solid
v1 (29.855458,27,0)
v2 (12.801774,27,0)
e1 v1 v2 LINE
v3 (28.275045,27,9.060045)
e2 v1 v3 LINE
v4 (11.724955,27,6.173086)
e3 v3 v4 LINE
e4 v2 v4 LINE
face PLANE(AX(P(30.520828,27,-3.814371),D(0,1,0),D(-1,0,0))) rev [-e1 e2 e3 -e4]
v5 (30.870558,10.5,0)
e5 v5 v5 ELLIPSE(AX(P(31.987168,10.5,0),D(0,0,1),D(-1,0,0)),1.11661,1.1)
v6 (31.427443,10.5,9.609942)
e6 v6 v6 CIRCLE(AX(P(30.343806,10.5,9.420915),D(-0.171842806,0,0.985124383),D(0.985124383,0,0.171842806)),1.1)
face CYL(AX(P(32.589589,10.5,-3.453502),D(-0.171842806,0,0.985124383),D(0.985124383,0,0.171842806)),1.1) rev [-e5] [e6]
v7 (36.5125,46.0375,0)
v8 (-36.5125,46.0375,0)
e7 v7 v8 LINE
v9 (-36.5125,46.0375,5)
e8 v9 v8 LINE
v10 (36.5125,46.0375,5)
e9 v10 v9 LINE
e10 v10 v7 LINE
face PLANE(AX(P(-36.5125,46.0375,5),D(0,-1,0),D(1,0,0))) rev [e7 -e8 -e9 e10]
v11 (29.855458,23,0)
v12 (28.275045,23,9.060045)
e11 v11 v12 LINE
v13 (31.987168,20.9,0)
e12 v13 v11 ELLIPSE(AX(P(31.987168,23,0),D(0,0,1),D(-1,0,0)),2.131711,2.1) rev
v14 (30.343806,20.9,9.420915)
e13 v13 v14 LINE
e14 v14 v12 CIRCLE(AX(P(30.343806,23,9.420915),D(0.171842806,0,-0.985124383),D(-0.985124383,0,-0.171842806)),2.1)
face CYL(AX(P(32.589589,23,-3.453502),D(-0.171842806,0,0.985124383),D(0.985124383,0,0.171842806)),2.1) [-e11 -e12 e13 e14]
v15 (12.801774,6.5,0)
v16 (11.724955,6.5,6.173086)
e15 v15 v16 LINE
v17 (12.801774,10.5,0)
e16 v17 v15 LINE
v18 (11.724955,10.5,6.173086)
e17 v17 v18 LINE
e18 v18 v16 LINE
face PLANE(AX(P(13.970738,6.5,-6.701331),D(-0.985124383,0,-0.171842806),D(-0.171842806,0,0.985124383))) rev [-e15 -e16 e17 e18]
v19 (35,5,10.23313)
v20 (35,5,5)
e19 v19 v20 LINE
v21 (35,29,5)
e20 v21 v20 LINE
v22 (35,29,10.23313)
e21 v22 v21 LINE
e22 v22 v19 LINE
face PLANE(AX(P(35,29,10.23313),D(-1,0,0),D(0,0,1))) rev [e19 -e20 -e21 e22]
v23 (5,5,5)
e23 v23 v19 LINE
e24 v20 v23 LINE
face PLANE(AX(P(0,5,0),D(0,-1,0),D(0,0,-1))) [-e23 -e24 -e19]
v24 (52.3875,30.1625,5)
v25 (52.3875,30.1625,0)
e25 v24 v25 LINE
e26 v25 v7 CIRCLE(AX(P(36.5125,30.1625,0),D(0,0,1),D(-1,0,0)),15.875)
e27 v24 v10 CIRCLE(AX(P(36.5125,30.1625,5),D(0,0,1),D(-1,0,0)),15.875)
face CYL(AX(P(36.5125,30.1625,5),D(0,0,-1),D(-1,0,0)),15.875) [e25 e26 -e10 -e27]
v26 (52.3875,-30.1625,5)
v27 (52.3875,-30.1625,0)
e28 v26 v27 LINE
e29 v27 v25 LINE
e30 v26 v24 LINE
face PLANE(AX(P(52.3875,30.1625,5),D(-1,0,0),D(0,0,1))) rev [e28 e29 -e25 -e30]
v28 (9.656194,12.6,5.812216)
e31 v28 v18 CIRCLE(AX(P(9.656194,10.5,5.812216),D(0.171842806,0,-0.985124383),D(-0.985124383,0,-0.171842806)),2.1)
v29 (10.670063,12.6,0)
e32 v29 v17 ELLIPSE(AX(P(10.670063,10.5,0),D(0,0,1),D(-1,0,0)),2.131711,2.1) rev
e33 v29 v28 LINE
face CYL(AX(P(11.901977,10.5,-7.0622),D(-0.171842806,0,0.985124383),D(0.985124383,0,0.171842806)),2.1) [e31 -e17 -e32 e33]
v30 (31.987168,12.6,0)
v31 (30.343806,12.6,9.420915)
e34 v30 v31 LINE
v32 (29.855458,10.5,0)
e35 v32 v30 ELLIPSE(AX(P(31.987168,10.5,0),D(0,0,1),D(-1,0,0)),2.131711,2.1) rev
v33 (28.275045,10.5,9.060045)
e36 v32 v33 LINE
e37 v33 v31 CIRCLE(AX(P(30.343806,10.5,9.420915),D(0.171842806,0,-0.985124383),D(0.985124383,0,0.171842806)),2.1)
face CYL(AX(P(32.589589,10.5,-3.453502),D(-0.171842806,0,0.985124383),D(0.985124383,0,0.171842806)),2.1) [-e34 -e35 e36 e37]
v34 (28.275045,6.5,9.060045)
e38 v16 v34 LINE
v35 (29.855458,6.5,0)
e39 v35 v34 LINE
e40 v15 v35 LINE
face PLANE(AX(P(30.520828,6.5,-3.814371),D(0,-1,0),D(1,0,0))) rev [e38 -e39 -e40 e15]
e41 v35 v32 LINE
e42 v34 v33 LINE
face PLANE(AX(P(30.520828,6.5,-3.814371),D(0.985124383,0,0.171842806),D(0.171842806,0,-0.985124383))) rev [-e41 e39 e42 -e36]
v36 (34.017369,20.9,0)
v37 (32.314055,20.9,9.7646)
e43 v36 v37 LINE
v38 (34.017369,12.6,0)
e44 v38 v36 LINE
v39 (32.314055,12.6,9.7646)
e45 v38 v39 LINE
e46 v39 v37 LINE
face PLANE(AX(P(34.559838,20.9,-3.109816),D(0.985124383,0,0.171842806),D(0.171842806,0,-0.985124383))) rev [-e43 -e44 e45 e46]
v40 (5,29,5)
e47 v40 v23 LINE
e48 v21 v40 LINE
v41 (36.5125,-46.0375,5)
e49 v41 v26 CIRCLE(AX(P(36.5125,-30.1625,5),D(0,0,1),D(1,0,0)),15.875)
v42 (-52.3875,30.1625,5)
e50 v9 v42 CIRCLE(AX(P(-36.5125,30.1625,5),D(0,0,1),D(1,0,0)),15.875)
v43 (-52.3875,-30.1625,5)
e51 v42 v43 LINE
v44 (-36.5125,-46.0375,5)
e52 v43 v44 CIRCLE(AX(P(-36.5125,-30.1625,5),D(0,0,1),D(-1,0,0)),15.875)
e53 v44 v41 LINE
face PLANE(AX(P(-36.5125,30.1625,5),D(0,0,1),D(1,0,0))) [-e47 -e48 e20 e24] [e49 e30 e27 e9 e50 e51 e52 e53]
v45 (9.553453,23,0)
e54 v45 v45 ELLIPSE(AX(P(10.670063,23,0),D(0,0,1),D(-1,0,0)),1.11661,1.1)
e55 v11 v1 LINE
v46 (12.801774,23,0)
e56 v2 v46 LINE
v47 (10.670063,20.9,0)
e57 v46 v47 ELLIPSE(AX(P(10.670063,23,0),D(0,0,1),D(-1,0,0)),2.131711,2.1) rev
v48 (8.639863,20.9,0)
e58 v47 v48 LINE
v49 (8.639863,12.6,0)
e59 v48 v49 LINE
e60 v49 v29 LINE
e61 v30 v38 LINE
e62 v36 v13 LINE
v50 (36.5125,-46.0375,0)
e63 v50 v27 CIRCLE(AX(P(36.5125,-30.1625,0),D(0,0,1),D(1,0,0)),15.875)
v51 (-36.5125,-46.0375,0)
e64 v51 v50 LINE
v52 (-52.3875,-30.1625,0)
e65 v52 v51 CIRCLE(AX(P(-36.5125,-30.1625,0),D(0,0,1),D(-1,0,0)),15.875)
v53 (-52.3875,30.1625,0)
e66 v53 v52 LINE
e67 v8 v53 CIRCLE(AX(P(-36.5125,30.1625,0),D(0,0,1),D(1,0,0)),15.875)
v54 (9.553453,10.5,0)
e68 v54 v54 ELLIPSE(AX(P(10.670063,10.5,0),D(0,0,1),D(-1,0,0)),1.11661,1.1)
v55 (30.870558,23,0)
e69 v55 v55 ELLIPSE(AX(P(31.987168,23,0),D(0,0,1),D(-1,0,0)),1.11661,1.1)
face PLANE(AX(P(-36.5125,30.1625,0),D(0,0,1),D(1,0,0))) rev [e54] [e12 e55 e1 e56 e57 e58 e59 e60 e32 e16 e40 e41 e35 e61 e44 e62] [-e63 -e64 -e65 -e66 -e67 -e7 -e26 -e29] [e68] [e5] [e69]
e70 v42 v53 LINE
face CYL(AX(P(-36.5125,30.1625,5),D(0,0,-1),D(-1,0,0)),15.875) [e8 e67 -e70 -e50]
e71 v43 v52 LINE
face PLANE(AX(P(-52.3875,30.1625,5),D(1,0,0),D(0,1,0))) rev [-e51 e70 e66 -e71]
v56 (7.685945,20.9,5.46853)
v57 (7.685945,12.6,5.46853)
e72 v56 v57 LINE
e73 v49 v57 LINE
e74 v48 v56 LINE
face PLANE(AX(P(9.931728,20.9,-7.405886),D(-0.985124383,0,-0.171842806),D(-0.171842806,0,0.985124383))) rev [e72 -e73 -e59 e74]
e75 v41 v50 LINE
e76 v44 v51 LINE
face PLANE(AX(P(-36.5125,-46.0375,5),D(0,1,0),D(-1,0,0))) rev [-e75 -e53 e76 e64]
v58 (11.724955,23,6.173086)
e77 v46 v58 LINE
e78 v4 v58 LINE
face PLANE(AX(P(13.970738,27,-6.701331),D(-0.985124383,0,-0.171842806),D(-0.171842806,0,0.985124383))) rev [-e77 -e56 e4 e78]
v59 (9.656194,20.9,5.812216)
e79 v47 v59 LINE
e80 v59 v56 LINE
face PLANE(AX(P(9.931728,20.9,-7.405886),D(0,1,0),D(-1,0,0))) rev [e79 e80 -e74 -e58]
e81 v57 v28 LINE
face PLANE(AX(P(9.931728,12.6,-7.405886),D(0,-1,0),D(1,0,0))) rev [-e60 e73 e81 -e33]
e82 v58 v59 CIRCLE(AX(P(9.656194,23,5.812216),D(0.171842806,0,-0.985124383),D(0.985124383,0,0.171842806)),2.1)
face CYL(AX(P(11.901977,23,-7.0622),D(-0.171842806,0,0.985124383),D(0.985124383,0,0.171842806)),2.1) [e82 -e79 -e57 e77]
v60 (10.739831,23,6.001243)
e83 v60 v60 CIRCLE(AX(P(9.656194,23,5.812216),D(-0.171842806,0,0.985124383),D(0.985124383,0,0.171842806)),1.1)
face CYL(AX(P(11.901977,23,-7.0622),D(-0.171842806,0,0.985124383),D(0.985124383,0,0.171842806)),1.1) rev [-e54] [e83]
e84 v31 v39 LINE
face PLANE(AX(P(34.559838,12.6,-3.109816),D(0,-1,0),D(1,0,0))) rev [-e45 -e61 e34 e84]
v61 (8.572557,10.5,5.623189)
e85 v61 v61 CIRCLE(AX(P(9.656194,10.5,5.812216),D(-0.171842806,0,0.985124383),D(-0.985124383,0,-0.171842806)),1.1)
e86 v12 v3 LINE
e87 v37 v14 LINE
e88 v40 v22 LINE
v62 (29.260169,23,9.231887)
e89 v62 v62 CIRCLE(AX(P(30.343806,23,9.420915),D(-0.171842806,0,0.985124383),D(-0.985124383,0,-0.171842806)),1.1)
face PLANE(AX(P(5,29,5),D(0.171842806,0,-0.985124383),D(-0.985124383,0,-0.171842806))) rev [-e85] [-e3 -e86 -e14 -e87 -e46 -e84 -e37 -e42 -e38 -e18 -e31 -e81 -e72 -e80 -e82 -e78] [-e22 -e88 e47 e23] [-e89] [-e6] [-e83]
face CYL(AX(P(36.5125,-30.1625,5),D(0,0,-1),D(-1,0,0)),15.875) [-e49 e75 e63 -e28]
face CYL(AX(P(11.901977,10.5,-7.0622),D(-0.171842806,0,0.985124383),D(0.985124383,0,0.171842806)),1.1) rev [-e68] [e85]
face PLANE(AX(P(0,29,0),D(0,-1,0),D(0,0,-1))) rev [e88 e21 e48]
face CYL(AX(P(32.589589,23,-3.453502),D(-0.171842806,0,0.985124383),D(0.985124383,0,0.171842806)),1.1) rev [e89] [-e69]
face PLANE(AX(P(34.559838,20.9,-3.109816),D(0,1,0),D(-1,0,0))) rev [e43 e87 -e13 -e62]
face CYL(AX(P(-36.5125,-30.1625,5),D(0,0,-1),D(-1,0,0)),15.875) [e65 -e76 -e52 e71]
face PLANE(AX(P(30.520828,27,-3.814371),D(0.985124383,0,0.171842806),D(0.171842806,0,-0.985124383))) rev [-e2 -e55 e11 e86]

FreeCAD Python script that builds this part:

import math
import FreeCAD as App
import Part
import Sketcher

V = App.Vector
Q = App.Units.Quantity

doc = App.newDocument("Part")
body = doc.addObject("PartDesign::Body", "Body")

# Sketch on XY plane
sketch1 = doc.addObject("Sketcher::SketchObject", "Sketch")
body.addObject(sketch1)
sketch1.AttachmentSupport = (doc.XY_Plane, [""])
sketch1.MapMode = "FlatFace"
sketch1.addGeometry([
    Part.LineSegment(V(37, 46, 0), V(-37, 46, 0)),  # 0
    Part.ArcOfCircle(Part.Circle(V(-37, 30, 0), V(0, 0, 1), 16), math.radians(90), math.radians(180)),  # 1
    Part.LineSegment(V(-52, 30, 0), V(-52, -30, 0)),  # 2
    Part.ArcOfCircle(Part.Circle(V(-37, -30, 0), V(0, 0, 1), 16), math.radians(-180), math.radians(-90)),  # 3
    Part.LineSegment(V(-37, -46, 0), V(37, -46, 0)),  # 4
    Part.ArcOfCircle(Part.Circle(V(37, -30, 0), V(0, 0, 1), 16), math.radians(-90), math.radians(0)),  # 5
    Part.LineSegment(V(52, -30, 0), V(52, 30, 0)),  # 6
    Part.ArcOfCircle(Part.Circle(V(37, 30, 0), V(0, 0, 1), 16), math.radians(0), math.radians(90)),  # 7
], False)
sketch1.addConstraint([
    Sketcher.Constraint("Tangent", 0, 2, 1, 1),
    Sketcher.Constraint("Tangent", 1, 2, 2, 1),
    Sketcher.Constraint("Tangent", 2, 2, 3, 1),
    Sketcher.Constraint("Tangent", 3, 2, 4, 1),
    Sketcher.Constraint("Tangent", 4, 2, 5, 1),
    Sketcher.Constraint("Tangent", 5, 2, 6, 1),
    Sketcher.Constraint("Tangent", 6, 2, 7, 1),
    Sketcher.Constraint("Tangent", 7, 2, 0, 1),
    Sketcher.Constraint("Horizontal", 0),
    Sketcher.Constraint("Vertical", 2),
    Sketcher.Constraint("Horizontal", 4),
    Sketcher.Constraint("Vertical", 6),
    Sketcher.Constraint("Equal", 1, 3),
    Sketcher.Constraint("Equal", 3, 5),
    Sketcher.Constraint("Equal", 5, 7),
    Sketcher.Constraint("Symmetric", 1, 3, 5, 3, -1, 1),
    Sketcher.Constraint("Radius", 1, Q("15.875 mm")),
    Sketcher.Constraint("DistanceY", 3, 3, 0, 2, Q("76.2 mm")),
    Sketcher.Constraint("DistanceX", 1, 2, 7, 3, Q("88.9 mm")),
])
pad1 = doc.addObject("PartDesign::Pad", "Pad")
body.addObject(pad1)
pad1.Profile = sketch1
pad1.Length = 5

# Sketch on XZ plane
sketch2 = doc.addObject("Sketcher::SketchObject", "Sketch001")
body.addObject(sketch2)
sketch2.AttachmentSupport = (doc.XZ_Plane, [""])
sketch2.MapMode = "FlatFace"
sketch2.AttachmentOffset = App.Placement(V(0, 0, -5), App.Rotation())
sketch2.addGeometry([
    Part.LineSegment(V(5, 5, 0), V(35, 10, 0)),
    Part.LineSegment(V(35, 10, 0), V(35, 5, 0)),
    Part.LineSegment(V(35, 5, 0), V(5, 5, 0)),
], False)
sketch2.addConstraint([
    Sketcher.Constraint("Coincident", 0, 2, 1, 1),
    Sketcher.Constraint("Coincident", 1, 2, 2, 1),
    Sketcher.Constraint("Coincident", 2, 2, 0, 1),
    Sketcher.Constraint("Vertical", 1),
    Sketcher.Constraint("Horizontal", 2),
    Sketcher.Constraint("DistanceX", 2, 2, 2, 1, Q("30 mm")),
    Sketcher.Constraint("DistanceX", -1, 1, 0, 2, Q("35 mm")),
    Sketcher.Constraint("DistanceY", -1, 1, 1, 2, Q("5 mm")),
    Sketcher.Constraint("DistanceY", 1, 2, 1, 1, Q("5.23313 mm")),
])
pad2 = doc.addObject("PartDesign::Pad", "Pad001")
body.addObject(pad2)
pad2.Profile = sketch2
pad2.Length = 24
pad2.Reversed = True

# Sketch on an angled plane
sketch3 = doc.addObject("Sketcher::SketchObject", "Sketch002")
body.addObject(sketch3)
sketch3.Placement = App.Placement(V(-0.698783, 0, 4.005918), App.Rotation(V(0.985124383, 0, 0.171842806), V(0, 1, 0), V(-0.171842806, 0, 0.985124383), "ZXY"))
sketch3.addGeometry([
    Part.Circle(V(10.5, 23, 0), V(0, 0, 1), 1.1),  # 0
    Part.Circle(V(31.5, 23, 0), V(0, 0, 1), 1.1),  # 1
    Part.Circle(V(31.5, 10.5, 0), V(0, 0, 1), 1.1),  # 2
    Part.Circle(V(10.5, 10.5, 0), V(0, 0, 1), 1.1),  # 3
    Part.LineSegment(V(29.4, 27, 0), V(12.6, 27, 0)),  # 4
    Part.LineSegment(V(12.6, 27, 0), V(12.6, 23, 0)),  # 5
    Part.ArcOfCircle(Part.Circle(V(10.5, 23, 0), V(0, 0, 1), 2.1), math.radians(-90), math.radians(0)),  # 6
    Part.LineSegment(V(10.5, 20.9, 0), V(8.5, 20.9, 0)),  # 7
    Part.LineSegment(V(8.5, 20.9, 0), V(8.5, 12.6, 0)),  # 8
    Part.LineSegment(V(8.5, 12.6, 0), V(10.5, 12.6, 0)),  # 9
    Part.ArcOfCircle(Part.Circle(V(10.5, 10.5, 0), V(0, 0, 1), 2.1), math.radians(0), math.radians(90)),  # 10
    Part.LineSegment(V(12.6, 10.5, 0), V(12.6, 6.5, 0)),  # 11
    Part.LineSegment(V(12.6, 6.5, 0), V(29.4, 6.5, 0)),  # 12
    Part.LineSegment(V(29.4, 6.5, 0), V(29.4, 10.5, 0)),  # 13
    Part.ArcOfCircle(Part.Circle(V(31.5, 10.5, 0), V(0, 0, 1), 2.1), math.radians(90), math.radians(180)),  # 14
    Part.LineSegment(V(31.5, 12.6, 0), V(33.5, 12.6, 0)),  # 15
    Part.LineSegment(V(33.5, 12.6, 0), V(33.5, 20.9, 0)),  # 16
    Part.LineSegment(V(33.5, 20.9, 0), V(31.5, 20.9, 0)),  # 17
    Part.ArcOfCircle(Part.Circle(V(31.5, 23, 0), V(0, 0, 1), 2.1), math.radians(180), math.radians(270)),  # 18
    Part.LineSegment(V(29.4, 23, 0), V(29.4, 27, 0)),  # 19
], False)
sketch3.addConstraint([
    Sketcher.Constraint("Coincident", 4, 2, 5, 1),
    Sketcher.Constraint("Tangent", 5, 2, 6, 2),
    Sketcher.Constraint("Tangent", 6, 1, 7, 1),
    Sketcher.Constraint("Coincident", 7, 2, 8, 1),
    Sketcher.Constraint("Coincident", 8, 2, 9, 1),
    Sketcher.Constraint("Tangent", 9, 2, 10, 2),
    Sketcher.Constraint("Tangent", 10, 1, 11, 1),
    Sketcher.Constraint("Coincident", 11, 2, 12, 1),
    Sketcher.Constraint("Coincident", 12, 2, 13, 1),
    Sketcher.Constraint("Tangent", 13, 2, 14, 2),
    Sketcher.Constraint("Tangent", 14, 1, 15, 1),
    Sketcher.Constraint("Coincident", 15, 2, 16, 1),
    Sketcher.Constraint("Coincident", 16, 2, 17, 1),
    Sketcher.Constraint("Tangent", 17, 2, 18, 2),
    Sketcher.Constraint("Tangent", 18, 1, 19, 1),
    Sketcher.Constraint("Coincident", 19, 2, 4, 1),
    Sketcher.Constraint("Horizontal", 4),
    Sketcher.Constraint("Vertical", 5),
    Sketcher.Constraint("Horizontal", 7),
    Sketcher.Constraint("Vertical", 8),
    Sketcher.Constraint("Horizontal", 9),
    Sketcher.Constraint("Vertical", 11),
    Sketcher.Constraint("Horizontal", 12),
    Sketcher.Constraint("Vertical", 13),
    Sketcher.Constraint("Horizontal", 15),
    Sketcher.Constraint("Vertical", 16),
    Sketcher.Constraint("Horizontal", 17),
    Sketcher.Constraint("Vertical", 19),
    Sketcher.Constraint("Coincident", 6, 3, 0, 3),
    Sketcher.Constraint("Coincident", 10, 3, 3, 3),
    Sketcher.Constraint("Coincident", 14, 3, 2, 3),
    Sketcher.Constraint("Coincident", 18, 3, 1, 3),
    Sketcher.Constraint("Equal", 0, 1),
    Sketcher.Constraint("Equal", 1, 2),
    Sketcher.Constraint("Equal", 2, 3),
    Sketcher.Constraint("Equal", 6, 10),
    Sketcher.Constraint("Equal", 10, 14),
    Sketcher.Constraint("Equal", 14, 18),
    Sketcher.Constraint("Horizontal", 0, 3, 1, 3),
    Sketcher.Constraint("Horizontal", 2, 3, 3, 3),
    Sketcher.Constraint("Vertical", 1, 3, 2, 3),
    Sketcher.Constraint("Vertical", 0, 3, 3, 3),
    Sketcher.Constraint("Equal", 9, 15),
    Sketcher.Constraint("Equal", 5, 11),
    Sketcher.Constraint("Diameter", 0, Q("2.2 mm")),
    Sketcher.Constraint("Radius", 6, Q("2.1 mm")),
    Sketcher.Constraint("DistanceX", 7, 2, 7, 1, Q("2 mm")),
    Sketcher.Constraint("DistanceY", 5, 2, 5, 1, Q("4 mm")),
    Sketcher.Constraint("DistanceX", 4, 2, 4, 1, Q("16.8 mm")),
    Sketcher.Constraint("DistanceY", 8, 2, 8, 1, Q("8.3 mm")),
    Sketcher.Constraint("DistanceY", -1, 1, 0, 3, Q("23 mm")),
    Sketcher.Constraint("DistanceX", -1, 1, 0, 3, Q("10.51134 mm")),
])
pocket1 = doc.addObject("PartDesign::Pocket", "Pocket")
body.addObject(pocket1)
pocket1.Profile = sketch3
pocket1.Type = "ThroughAll"

doc.recompute()
